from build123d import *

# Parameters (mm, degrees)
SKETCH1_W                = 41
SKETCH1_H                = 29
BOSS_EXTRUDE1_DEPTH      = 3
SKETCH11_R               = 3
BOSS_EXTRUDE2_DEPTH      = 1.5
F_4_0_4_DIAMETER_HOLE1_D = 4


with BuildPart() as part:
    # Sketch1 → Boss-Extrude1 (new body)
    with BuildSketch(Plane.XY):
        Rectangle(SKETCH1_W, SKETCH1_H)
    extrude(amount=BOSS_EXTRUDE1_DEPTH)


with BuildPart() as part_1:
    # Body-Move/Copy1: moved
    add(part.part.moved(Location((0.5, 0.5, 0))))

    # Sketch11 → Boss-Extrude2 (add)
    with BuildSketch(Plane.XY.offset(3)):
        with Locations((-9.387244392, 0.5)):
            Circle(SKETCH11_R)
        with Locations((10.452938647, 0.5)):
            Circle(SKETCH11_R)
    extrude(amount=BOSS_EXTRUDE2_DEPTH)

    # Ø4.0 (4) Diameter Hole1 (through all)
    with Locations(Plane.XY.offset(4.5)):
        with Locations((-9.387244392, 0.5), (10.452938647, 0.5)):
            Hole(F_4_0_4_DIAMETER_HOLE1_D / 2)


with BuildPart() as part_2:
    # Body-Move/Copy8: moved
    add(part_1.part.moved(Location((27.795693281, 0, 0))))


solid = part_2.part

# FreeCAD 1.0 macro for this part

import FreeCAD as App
import Part
import Sketcher

doc = App.newDocument("Part")
body = doc.addObject("PartDesign::Body", "Body")

# Sketch on XY plane
sketch1 = body.newObject("Sketcher::SketchObject", "Sketch")
sketch1.AttachmentSupport = (doc.getObject("XY_Plane"), [""])
sketch1.MapMode = "FlatFace"
sketch1.addGeometry(Part.LineSegment(App.Vector(-20, 14, 0), App.Vector(-20, -14, 0)), False)
sketch1.addGeometry(Part.LineSegment(App.Vector(-20, -14, 0), App.Vector(20, -14, 0)), False)
sketch1.addGeometry(Part.LineSegment(App.Vector(20, -14, 0), App.Vector(20, 14, 0)), False)
sketch1.addGeometry(Part.LineSegment(App.Vector(20, 14, 0), App.Vector(-20, 14, 0)), False)
sketch1.addConstraint(Sketcher.Constraint("Coincident", 0, 2, 1, 1))
sketch1.addConstraint(Sketcher.Constraint("Coincident", 1, 2, 2, 1))
sketch1.addConstraint(Sketcher.Constraint("Coincident", 2, 2, 3, 1))
sketch1.addConstraint(Sketcher.Constraint("Coincident", 3, 2, 0, 1))
sketch1.addConstraint(Sketcher.Constraint("Vertical", 0))
sketch1.addConstraint(Sketcher.Constraint("Horizontal", 1))
sketch1.addConstraint(Sketcher.Constraint("Vertical", 2))
sketch1.addConstraint(Sketcher.Constraint("Horizontal", 3))
sketch1.addConstraint(Sketcher.Constraint("Symmetric", 0, 2, 2, 2, -1, 1))
sketch1.addConstraint(Sketcher.Constraint("DistanceX", 1, 1, 1, 2, 41.0))
sketch1.addConstraint(Sketcher.Constraint("DistanceY", 0, 2, 0, 1, 29.0))
pad1 = body.newObject("PartDesign::Pad", "Pad")
pad1.Profile = sketch1
pad1.Length = 3
body2 = doc.addObject("PartDesign::Body", "Body001")
doc.recompute()

body.Placement = App.Placement(App.Vector(0.5, 0.5, 0), App.Rotation(App.Vector(0, 0, 1), 0))
boolean = body2.newObject("PartDesign::Boolean", "Boolean")
boolean.Type = "Fuse"
boolean.addObjects([body])

# Sketch on XY plane
sketch2 = body2.newObject("Sketcher::SketchObject", "Sketch001")
sketch2.AttachmentSupport = (doc.getObject("XY_Plane001"), [""])
sketch2.MapMode = "FlatFace"
sketch2.AttachmentOffset = App.Placement(App.Vector(0, 0, 3), App.Rotation())
sketch2.addGeometry(Part.Circle(App.Vector(-9.4, 0.5, 0), App.Vector(0, 0, 1), 3), False)
sketch2.addGeometry(Part.Circle(App.Vector(10.5, 0.5, 0), App.Vector(0, 0, 1), 3), False)
sketch2.addConstraint(Sketcher.Constraint("Equal", 0, 1))
sketch2.addConstraint(Sketcher.Constraint("Horizontal", 0, 3, 1, 3))
sketch2.addConstraint(Sketcher.Constraint("Diameter", 0, 6.0))
sketch2.addConstraint(Sketcher.Constraint("DistanceY", -1, 1, 0, 3, 0.5))
sketch2.addConstraint(Sketcher.Constraint("DistanceX", -1, 1, 1, 3, 10.452939))
sketch2.addConstraint(Sketcher.Constraint("DistanceX", 0, 3, -1, 1, 9.387244))
pad2 = body2.newObject("PartDesign::Pad", "Pad001")
pad2.Profile = sketch2
pad2.Length = 1.5

# Sketch on XY plane
sketch3 = body2.newObject("Sketcher::SketchObject", "Sketch002")
sketch3.AttachmentSupport = (doc.getObject("XY_Plane001"), [""])
sketch3.MapMode = "FlatFace"
sketch3.AttachmentOffset = App.Placement(App.Vector(0, 0, 4.5), App.Rotation())
sketch3.addGeometry(Part.Circle(App.Vector(-9.4, 0.5, 0), App.Vector(0, 0, 1), 2), False)
sketch3.addGeometry(Part.Circle(App.Vector(10.5, 0.5, 0), App.Vector(0, 0, 1), 2), False)
sketch3.addConstraint(Sketcher.Constraint("Equal", 0, 1))
sketch3.addConstraint(Sketcher.Constraint("Horizontal", 0, 3, 1, 3))
sketch3.addConstraint(Sketcher.Constraint("Diameter", 0, 4.0))
sketch3.addConstraint(Sketcher.Constraint("DistanceY", -1, 1, 0, 3, 0.5))
sketch3.addConstraint(Sketcher.Constraint("DistanceX", -1, 1, 1, 3, 10.452939))
sketch3.addConstraint(Sketcher.Constraint("DistanceX", 0, 3, -1, 1, 9.387244))
doc.recompute()
hole = body2.newObject("PartDesign::Hole", "Hole")
hole.Profile = sketch3
hole.ThreadType = "None"
hole.Diameter = 4
hole.DepthType = "ThroughAll"
body3 = doc.addObject("PartDesign::Body", "Body002")
doc.recompute()

body2.Placement = App.Placement(App.Vector(27.795693, 0, 0), App.Rotation(App.Vector(0, 0, 1), 0))
boolean2 = body3.newObject("PartDesign::Boolean", "Boolean001")
boolean2.Type = "Fuse"
boolean2.addObjects([body2])

doc.recompute()
